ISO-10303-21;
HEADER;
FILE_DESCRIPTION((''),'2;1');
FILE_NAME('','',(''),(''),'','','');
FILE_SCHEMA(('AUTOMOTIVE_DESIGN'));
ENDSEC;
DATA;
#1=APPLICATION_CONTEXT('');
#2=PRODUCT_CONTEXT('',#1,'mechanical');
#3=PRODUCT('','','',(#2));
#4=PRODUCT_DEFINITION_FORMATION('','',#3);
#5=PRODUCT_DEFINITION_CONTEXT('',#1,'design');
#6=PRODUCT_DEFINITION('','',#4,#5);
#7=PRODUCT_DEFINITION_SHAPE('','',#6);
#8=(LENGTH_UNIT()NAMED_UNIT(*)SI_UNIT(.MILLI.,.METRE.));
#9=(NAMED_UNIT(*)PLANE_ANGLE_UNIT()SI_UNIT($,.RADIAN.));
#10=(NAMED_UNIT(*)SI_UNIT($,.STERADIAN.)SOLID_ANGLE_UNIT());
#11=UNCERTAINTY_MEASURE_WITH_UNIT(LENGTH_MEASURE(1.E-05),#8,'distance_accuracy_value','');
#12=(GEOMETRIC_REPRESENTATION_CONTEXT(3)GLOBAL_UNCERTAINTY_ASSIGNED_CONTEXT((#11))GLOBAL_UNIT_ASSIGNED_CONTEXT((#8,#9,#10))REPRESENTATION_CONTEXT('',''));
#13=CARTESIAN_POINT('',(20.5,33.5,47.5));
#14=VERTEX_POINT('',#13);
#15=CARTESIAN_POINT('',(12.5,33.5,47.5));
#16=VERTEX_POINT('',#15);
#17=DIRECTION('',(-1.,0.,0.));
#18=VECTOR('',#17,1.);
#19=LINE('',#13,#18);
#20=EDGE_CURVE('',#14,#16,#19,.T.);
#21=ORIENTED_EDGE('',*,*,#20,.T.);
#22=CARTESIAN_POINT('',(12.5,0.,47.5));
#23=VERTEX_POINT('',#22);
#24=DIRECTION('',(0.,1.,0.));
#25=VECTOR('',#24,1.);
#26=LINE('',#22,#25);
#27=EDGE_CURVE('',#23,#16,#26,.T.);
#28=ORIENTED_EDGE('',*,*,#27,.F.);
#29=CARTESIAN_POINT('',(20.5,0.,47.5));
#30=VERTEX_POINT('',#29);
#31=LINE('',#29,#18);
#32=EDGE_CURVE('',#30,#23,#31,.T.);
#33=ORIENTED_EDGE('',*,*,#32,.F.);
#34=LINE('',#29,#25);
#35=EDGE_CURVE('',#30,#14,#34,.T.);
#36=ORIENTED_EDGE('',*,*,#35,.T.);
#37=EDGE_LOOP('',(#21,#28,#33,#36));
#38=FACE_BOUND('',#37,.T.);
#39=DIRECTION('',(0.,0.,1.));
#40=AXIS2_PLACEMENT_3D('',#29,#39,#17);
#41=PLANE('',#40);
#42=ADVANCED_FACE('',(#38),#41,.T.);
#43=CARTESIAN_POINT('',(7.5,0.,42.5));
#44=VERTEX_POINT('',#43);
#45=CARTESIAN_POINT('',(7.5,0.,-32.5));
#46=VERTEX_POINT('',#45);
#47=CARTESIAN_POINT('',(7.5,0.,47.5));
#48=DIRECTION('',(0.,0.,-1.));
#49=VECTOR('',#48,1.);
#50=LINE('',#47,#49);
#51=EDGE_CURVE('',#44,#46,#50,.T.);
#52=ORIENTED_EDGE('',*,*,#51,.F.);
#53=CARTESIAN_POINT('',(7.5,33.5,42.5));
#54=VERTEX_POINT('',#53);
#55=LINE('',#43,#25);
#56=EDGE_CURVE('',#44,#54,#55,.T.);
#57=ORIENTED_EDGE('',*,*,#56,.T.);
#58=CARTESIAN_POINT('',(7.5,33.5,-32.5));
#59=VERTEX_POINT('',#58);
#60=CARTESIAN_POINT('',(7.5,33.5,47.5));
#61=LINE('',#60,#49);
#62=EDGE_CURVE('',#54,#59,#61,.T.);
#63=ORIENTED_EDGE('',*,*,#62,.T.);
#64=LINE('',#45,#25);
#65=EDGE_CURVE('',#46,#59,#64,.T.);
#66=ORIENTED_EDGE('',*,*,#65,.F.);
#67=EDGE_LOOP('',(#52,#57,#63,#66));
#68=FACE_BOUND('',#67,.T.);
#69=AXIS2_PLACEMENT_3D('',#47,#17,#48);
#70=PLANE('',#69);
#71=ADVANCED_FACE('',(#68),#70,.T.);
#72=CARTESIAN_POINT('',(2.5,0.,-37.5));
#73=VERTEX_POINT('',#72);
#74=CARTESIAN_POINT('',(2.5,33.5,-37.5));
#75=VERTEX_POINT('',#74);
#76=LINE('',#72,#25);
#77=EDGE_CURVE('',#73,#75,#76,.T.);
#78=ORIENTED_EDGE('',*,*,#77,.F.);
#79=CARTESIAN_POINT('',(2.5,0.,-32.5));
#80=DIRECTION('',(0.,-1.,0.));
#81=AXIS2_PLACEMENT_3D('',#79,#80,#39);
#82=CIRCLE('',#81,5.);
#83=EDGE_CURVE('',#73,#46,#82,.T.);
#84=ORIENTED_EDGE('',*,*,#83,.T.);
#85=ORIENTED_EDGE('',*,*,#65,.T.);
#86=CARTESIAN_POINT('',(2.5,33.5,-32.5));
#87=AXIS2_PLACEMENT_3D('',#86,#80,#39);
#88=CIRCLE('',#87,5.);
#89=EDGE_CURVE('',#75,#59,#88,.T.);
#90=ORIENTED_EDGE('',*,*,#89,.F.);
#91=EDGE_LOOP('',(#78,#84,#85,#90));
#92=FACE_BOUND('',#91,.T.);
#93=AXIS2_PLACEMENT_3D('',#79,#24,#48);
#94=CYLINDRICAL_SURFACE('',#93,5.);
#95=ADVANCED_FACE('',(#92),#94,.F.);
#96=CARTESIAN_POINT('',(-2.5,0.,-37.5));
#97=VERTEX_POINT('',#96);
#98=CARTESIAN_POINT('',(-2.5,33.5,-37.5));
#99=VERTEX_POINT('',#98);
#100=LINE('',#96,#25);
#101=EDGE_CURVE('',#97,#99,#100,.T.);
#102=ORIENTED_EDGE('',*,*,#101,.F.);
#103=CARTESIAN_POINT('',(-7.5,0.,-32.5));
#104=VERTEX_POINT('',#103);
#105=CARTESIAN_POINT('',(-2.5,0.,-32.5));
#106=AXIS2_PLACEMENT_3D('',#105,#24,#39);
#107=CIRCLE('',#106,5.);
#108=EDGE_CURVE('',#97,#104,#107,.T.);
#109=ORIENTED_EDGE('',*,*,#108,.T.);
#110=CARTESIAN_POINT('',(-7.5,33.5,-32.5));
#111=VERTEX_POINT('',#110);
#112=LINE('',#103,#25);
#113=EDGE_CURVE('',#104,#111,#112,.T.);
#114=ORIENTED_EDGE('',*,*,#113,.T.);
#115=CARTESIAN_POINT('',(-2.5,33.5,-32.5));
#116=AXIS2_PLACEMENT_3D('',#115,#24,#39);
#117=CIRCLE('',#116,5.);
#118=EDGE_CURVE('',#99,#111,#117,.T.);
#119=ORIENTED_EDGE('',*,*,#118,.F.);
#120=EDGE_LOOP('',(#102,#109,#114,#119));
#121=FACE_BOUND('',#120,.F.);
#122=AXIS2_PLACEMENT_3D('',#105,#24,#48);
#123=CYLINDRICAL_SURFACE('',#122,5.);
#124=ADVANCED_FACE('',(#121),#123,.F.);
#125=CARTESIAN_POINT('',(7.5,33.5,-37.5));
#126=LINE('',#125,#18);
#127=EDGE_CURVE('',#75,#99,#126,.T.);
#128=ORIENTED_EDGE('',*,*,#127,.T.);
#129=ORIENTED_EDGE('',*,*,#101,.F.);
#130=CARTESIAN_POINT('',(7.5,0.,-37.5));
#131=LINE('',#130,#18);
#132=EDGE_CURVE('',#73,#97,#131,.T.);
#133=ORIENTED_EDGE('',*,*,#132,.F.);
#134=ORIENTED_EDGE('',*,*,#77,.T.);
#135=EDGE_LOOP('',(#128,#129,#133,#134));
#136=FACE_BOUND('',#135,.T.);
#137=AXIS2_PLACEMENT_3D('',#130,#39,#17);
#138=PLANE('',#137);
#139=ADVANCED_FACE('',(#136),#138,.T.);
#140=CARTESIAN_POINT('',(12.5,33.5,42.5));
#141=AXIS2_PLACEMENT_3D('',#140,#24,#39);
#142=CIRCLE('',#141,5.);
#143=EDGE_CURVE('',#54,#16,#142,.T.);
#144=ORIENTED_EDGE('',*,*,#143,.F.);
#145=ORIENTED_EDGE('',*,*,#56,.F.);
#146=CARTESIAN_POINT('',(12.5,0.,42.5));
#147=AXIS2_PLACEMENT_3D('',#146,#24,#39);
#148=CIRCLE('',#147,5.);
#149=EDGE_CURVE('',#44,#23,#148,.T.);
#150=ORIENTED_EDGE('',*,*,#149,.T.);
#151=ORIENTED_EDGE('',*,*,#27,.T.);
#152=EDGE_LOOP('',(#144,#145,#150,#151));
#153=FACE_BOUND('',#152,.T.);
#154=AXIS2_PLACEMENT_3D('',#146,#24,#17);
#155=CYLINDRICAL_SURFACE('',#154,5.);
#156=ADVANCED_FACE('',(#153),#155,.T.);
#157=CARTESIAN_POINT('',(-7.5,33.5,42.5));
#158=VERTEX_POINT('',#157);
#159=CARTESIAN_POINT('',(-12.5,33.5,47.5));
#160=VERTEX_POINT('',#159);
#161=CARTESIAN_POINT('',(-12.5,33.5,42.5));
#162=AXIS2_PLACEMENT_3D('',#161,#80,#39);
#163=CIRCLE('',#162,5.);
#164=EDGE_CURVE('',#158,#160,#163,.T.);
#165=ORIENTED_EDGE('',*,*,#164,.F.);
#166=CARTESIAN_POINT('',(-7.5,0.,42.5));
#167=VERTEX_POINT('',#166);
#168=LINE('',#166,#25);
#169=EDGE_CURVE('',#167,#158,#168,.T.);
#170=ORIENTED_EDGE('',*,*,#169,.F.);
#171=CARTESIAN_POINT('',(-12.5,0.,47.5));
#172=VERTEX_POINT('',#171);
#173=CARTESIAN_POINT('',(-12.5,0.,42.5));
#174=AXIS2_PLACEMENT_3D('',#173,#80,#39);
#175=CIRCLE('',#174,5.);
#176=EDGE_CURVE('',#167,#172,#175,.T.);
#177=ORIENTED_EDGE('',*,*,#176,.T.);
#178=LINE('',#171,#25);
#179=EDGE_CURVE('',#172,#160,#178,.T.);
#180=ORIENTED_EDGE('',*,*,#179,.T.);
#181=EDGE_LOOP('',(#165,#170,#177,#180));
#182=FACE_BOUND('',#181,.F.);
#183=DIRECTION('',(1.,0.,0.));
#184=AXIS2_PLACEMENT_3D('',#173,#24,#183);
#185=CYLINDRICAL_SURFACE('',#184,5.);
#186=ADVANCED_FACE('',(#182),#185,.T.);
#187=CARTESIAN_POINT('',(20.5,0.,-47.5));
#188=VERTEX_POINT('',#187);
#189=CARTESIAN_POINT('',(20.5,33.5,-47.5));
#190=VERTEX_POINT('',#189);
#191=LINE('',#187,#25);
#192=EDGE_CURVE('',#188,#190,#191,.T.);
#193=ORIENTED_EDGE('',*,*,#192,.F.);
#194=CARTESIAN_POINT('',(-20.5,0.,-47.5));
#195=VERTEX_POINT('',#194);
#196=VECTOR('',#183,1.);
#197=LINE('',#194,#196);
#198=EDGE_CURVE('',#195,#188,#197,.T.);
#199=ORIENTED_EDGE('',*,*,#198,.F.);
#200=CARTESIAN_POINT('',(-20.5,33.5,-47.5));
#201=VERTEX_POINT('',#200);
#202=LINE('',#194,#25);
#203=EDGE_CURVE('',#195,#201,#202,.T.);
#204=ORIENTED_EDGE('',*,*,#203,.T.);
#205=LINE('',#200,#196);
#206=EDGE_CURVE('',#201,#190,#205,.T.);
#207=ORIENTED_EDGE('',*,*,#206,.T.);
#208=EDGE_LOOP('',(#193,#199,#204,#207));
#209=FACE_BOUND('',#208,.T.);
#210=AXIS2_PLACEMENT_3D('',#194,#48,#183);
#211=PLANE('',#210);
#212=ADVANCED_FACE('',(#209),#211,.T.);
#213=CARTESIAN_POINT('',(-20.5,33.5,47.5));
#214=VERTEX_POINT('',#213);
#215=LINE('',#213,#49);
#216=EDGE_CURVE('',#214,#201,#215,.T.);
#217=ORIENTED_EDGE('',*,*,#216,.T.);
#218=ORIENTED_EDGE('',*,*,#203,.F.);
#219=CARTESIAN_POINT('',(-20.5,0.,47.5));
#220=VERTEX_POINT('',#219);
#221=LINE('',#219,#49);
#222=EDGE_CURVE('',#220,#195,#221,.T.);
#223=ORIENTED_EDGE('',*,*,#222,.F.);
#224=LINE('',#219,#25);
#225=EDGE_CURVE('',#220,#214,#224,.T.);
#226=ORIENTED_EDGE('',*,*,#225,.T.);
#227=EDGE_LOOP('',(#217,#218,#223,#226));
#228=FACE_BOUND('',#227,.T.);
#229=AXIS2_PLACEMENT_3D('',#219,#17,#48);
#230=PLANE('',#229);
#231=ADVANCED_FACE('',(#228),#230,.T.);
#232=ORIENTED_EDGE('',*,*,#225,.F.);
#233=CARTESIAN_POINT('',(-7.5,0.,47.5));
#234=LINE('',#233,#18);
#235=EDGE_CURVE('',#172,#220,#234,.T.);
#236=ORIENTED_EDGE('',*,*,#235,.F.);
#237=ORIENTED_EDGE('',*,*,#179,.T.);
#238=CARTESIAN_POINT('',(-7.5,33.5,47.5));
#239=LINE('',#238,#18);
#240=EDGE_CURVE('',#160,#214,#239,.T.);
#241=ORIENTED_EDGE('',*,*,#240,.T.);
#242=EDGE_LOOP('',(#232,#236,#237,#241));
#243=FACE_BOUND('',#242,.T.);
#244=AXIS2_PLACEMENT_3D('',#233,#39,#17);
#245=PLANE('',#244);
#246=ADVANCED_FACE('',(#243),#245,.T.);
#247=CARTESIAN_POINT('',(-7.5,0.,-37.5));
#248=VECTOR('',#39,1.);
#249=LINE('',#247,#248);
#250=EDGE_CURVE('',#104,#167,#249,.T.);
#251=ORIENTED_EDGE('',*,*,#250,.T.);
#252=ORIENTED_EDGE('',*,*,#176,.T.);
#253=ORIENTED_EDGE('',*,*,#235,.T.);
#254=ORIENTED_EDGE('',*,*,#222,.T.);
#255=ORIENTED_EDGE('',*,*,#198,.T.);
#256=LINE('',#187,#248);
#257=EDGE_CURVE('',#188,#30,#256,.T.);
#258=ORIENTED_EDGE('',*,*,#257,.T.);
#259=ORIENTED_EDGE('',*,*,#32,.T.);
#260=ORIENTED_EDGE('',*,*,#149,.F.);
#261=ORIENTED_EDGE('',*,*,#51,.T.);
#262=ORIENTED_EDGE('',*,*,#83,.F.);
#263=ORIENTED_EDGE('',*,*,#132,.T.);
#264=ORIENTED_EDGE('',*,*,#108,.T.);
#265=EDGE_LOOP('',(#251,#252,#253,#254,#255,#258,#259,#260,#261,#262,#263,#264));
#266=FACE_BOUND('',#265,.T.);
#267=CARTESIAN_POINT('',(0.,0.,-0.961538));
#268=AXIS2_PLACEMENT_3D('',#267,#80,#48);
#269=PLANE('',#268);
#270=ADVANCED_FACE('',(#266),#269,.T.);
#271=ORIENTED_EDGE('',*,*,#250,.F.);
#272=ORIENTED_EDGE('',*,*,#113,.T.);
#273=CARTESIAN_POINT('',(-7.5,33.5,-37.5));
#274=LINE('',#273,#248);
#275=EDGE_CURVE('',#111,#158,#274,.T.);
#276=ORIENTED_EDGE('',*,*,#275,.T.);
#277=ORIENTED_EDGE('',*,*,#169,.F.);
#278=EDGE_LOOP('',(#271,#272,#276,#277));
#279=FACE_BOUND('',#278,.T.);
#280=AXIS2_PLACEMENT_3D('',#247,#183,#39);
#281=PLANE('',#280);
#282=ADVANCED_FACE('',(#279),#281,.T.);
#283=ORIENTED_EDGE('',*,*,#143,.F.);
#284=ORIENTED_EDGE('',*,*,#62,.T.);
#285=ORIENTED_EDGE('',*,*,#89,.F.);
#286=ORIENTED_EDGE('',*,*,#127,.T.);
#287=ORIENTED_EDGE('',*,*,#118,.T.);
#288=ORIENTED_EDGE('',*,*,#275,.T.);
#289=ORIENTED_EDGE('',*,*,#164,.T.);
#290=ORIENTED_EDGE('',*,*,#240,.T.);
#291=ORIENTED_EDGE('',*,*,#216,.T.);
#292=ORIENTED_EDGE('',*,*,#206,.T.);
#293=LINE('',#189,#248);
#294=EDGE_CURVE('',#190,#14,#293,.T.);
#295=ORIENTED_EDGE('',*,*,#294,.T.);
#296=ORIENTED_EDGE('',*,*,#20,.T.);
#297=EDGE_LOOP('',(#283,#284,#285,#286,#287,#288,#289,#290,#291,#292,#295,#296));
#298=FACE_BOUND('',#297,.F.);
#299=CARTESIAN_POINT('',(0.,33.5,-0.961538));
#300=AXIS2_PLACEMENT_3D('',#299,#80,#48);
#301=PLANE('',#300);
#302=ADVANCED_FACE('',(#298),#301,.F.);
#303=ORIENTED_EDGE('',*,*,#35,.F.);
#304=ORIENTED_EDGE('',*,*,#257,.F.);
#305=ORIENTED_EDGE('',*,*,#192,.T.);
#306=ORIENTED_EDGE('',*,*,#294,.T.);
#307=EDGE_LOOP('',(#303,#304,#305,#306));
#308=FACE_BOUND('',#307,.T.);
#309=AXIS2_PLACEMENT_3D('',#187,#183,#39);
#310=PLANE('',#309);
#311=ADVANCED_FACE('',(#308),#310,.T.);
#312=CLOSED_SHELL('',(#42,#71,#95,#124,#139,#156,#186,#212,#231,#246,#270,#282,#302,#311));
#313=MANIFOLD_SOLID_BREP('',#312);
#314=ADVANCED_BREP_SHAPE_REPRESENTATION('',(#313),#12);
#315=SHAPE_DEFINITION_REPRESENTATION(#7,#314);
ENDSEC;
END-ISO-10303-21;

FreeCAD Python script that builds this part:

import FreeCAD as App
import Part
import Sketcher

V = App.Vector


def edges_at(feature, points):
    """Names of the edges that pass closest to the given points."""
    edges = feature.Shape.Edges
    near = lambda p: min(range(len(edges)), key=lambda i: edges[i].distToShape(Part.Vertex(*p))[0])
    return sorted({f"Edge{near(p) + 1}" for p in points})

doc = App.newDocument("Part")
body = doc.addObject("PartDesign::Body", "Body")

# Sketch on XZ plane
sketch1 = doc.addObject("Sketcher::SketchObject", "Sketch")
body.addObject(sketch1)
sketch1.AttachmentSupport = (doc.XZ_Plane, [""])
sketch1.MapMode = "FlatFace"
sketch1.addGeometry([
    Part.LineSegment(V(8, 48, 0), V(8, -38, 0)),  # 0
    Part.LineSegment(V(8, -38, 0), V(-8, -38, 0)),  # 1
    Part.LineSegment(V(-8, -38, 0), V(-8, 48, 0)),  # 2
    Part.LineSegment(V(-8, 48, 0), V(-20, 48, 0)),  # 3
    Part.LineSegment(V(-20, 48, 0), V(-20, -48, 0)),  # 4
    Part.LineSegment(V(-20, -48, 0), V(20, -48, 0)),  # 5
    Part.LineSegment(V(20, -48, 0), V(20, 48, 0)),  # 6
    Part.LineSegment(V(20, 48, 0), V(8, 48, 0)),  # 7
], False)
sketch1.addConstraint([
    Sketcher.Constraint("Coincident", 0, 2, 1, 1),
    Sketcher.Constraint("Coincident", 1, 2, 2, 1),
    Sketcher.Constraint("Coincident", 2, 2, 3, 1),
    Sketcher.Constraint("Coincident", 3, 2, 4, 1),
    Sketcher.Constraint("Coincident", 4, 2, 5, 1),
    Sketcher.Constraint("Coincident", 5, 2, 6, 1),
    Sketcher.Constraint("Coincident", 6, 2, 7, 1),
    Sketcher.Constraint("Coincident", 7, 2, 0, 1),
    Sketcher.Constraint("Vertical", 0),
    Sketcher.Constraint("Horizontal", 1),
    Sketcher.Constraint("Vertical", 2),
    Sketcher.Constraint("Horizontal", 3),
    Sketcher.Constraint("Vertical", 4),
    Sketcher.Constraint("Horizontal", 5),
    Sketcher.Constraint("Vertical", 6),
    Sketcher.Constraint("Horizontal", 7),
    Sketcher.Constraint("Symmetric", 3, 2, 5, 2, -1, 1),
    Sketcher.Constraint("Symmetric", 2, 2, 7, 2, -2),
    Sketcher.Constraint("DistanceX", 1, 2, 1, 1, 15.0),
    Sketcher.Constraint("DistanceX", 3, 2, 3, 1, 13.0),
    Sketcher.Constraint("DistanceY", 0, 2, 0, 1, 85.0),
    Sketcher.Constraint("DistanceY", 4, 2, 4, 1, 95.0),
])
pad1 = doc.addObject("PartDesign::Pad", "Pad")
body.addObject(pad1)
pad1.Profile = sketch1
pad1.Length = 33.5
pad1.Reversed = True
doc.recompute()

fillet = doc.addObject("PartDesign::Fillet", "Fillet")
body.addObject(fillet)
fillet.Base = (pad1, edges_at(pad1, [(7.5, 16.75, -37.5), (-7.5, 16.75, -37.5)]))
fillet.Radius = 5
doc.recompute()

fillet2 = doc.addObject("PartDesign::Fillet", "Fillet001")
body.addObject(fillet2)
fillet2.Base = (fillet, edges_at(fillet, [(7.5, 16.75, 47.5), (-7.5, 16.75, 47.5)]))
fillet2.Radius = 5

doc.recompute()
